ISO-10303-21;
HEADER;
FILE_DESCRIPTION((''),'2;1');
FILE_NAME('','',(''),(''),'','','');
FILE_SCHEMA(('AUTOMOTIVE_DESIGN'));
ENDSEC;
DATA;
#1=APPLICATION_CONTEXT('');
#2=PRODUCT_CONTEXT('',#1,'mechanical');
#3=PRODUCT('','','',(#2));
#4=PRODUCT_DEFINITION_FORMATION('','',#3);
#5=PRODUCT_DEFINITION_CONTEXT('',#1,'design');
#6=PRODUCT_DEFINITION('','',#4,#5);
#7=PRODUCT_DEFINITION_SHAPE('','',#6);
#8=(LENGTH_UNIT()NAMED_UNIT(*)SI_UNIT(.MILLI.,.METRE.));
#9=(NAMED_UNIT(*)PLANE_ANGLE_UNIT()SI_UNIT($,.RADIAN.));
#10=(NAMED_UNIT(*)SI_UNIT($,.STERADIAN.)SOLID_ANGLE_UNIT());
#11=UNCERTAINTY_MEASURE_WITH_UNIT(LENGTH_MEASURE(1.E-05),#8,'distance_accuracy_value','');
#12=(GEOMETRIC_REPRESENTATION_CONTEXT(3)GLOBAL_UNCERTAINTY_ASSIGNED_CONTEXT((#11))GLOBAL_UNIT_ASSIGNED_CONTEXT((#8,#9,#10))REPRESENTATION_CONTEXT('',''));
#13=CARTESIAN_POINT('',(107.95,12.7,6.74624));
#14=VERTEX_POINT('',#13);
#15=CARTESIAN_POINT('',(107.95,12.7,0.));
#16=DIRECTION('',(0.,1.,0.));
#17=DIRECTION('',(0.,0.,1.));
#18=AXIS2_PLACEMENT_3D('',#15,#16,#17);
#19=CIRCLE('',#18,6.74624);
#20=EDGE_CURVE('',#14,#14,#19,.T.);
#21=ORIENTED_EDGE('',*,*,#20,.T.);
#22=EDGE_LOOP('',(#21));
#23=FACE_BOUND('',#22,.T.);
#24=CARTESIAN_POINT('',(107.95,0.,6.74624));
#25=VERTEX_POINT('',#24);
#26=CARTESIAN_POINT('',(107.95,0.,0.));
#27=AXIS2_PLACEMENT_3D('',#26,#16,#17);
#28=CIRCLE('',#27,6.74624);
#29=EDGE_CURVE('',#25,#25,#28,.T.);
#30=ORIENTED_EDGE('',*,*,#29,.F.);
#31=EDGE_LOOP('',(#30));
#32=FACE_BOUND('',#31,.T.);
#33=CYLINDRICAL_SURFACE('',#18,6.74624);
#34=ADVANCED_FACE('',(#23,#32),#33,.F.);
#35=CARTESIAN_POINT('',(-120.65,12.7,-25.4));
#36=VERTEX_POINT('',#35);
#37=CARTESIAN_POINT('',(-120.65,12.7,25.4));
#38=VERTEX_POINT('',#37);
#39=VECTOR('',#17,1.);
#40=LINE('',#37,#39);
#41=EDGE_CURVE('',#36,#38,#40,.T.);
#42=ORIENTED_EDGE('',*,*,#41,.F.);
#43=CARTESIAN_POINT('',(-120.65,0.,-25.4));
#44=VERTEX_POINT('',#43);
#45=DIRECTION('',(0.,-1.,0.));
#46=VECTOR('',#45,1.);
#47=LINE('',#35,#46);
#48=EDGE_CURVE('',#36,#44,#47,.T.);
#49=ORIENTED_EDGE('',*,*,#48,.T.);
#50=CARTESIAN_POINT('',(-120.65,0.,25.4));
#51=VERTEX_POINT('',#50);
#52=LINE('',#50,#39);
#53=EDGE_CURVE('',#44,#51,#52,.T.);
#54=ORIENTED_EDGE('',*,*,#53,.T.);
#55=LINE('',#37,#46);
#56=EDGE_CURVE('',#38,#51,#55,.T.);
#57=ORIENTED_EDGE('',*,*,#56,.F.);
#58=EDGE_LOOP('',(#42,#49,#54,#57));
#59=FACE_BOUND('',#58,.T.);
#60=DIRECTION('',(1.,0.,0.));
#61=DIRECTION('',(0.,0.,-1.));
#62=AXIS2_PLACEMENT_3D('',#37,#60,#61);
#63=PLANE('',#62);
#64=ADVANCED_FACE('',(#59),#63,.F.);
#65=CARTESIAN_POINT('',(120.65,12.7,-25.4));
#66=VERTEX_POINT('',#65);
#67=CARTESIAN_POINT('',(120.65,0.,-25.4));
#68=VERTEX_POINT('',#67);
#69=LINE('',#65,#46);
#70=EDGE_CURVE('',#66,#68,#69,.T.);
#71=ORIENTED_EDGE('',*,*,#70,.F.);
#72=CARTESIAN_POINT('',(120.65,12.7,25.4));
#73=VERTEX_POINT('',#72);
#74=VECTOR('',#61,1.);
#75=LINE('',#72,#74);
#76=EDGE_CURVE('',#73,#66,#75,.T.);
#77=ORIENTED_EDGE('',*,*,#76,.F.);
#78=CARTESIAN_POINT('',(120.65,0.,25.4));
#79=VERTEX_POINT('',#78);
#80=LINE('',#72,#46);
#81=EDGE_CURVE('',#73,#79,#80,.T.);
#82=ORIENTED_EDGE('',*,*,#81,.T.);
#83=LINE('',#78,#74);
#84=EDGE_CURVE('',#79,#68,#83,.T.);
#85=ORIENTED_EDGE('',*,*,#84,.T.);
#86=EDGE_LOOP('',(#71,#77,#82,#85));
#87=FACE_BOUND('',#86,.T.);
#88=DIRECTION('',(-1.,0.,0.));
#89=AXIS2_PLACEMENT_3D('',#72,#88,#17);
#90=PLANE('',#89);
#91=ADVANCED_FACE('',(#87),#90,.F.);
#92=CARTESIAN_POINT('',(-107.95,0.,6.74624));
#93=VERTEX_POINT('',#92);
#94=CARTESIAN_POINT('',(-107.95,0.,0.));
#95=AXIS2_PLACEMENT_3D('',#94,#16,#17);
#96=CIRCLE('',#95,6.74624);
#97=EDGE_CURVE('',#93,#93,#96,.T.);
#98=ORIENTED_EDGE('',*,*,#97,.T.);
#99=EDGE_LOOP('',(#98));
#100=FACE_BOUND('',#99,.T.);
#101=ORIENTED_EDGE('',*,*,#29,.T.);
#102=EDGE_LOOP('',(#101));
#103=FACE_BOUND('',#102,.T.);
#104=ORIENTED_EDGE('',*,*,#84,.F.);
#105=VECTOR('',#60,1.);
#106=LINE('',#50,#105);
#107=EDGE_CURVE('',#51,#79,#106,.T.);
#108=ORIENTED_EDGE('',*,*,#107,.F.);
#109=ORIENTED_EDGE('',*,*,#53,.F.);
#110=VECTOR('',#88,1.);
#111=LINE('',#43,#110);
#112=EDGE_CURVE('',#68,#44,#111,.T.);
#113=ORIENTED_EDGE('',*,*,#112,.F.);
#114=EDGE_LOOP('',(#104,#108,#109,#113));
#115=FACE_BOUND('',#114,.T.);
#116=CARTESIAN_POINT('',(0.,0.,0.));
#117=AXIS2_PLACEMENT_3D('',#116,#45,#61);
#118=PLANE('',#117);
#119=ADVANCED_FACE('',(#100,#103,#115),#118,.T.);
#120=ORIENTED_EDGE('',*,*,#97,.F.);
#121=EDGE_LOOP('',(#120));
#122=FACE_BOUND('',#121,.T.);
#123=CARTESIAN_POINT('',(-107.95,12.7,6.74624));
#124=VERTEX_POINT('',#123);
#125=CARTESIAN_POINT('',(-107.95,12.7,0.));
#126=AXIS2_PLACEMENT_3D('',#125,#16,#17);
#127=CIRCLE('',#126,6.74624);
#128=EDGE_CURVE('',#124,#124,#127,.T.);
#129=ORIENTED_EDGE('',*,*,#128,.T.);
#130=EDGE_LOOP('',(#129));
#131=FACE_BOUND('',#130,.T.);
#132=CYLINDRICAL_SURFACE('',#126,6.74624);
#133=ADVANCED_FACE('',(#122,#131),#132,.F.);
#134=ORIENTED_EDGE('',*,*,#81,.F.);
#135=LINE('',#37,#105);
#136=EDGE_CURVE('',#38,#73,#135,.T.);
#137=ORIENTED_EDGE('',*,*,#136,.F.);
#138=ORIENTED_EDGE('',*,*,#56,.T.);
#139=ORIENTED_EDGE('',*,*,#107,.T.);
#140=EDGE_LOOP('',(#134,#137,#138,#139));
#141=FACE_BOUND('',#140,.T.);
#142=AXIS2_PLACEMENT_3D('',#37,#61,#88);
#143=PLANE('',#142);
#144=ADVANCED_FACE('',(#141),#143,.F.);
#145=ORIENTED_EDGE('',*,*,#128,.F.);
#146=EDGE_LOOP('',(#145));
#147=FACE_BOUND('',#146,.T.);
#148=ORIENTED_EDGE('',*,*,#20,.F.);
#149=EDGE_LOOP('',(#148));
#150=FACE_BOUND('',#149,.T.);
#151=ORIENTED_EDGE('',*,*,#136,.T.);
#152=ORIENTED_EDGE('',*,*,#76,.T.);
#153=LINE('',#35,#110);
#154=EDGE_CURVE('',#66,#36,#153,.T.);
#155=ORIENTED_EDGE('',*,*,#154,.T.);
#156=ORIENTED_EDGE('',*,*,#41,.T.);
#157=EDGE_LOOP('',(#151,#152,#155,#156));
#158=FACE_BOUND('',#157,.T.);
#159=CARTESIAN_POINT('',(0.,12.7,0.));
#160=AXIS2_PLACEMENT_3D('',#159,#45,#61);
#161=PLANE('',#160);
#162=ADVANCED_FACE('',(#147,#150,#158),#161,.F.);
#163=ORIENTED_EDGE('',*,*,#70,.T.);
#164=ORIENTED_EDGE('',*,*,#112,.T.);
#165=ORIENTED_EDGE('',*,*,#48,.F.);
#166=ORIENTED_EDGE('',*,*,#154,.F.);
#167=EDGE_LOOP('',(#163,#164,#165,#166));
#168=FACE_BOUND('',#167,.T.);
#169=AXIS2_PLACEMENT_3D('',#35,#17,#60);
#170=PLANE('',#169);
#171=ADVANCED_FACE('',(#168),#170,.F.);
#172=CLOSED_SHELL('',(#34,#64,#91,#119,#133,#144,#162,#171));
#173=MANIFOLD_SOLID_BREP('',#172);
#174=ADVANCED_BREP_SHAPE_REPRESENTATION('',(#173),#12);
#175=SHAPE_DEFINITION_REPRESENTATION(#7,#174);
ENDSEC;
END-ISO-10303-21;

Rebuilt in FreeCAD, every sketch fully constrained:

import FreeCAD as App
import Part
import Sketcher

V = App.Vector
Q = App.Units.Quantity

doc = App.newDocument("Part")
body = doc.addObject("PartDesign::Body", "Body")

# Sketch on XZ plane
sketch1 = body.newObject("Sketcher::SketchObject", "Sketch")
sketch1.AttachmentSupport = (doc.getObject("XZ_Plane"), [""])
sketch1.MapMode = "FlatFace"
sketch1.addGeometry(Part.LineSegment(V(-121, -25, 0), V(-121, 25, 0)), False)
sketch1.addGeometry(Part.LineSegment(V(-121, 25, 0), V(121, 25, 0)), False)
sketch1.addGeometry(Part.LineSegment(V(121, 25, 0), V(121, -25, 0)), False)
sketch1.addGeometry(Part.LineSegment(V(121, -25, 0), V(-121, -25, 0)), False)
sketch1.addConstraint(Sketcher.Constraint("Coincident", 0, 2, 1, 1))
sketch1.addConstraint(Sketcher.Constraint("Coincident", 1, 2, 2, 1))
sketch1.addConstraint(Sketcher.Constraint("Coincident", 2, 2, 3, 1))
sketch1.addConstraint(Sketcher.Constraint("Coincident", 3, 2, 0, 1))
sketch1.addConstraint(Sketcher.Constraint("Vertical", 0))
sketch1.addConstraint(Sketcher.Constraint("Horizontal", 1))
sketch1.addConstraint(Sketcher.Constraint("Vertical", 2))
sketch1.addConstraint(Sketcher.Constraint("Horizontal", 3))
sketch1.addConstraint(Sketcher.Constraint("Symmetric", 0, 2, 2, 2, -1, 1))
sketch1.addConstraint(Sketcher.Constraint("DistanceY", 0, 1, 0, 2, Q("2 in")))
sketch1.addConstraint(Sketcher.Constraint("DistanceX", 1, 1, 1, 2, Q("9.5 in")))
pad1 = body.newObject("PartDesign::Pad", "Pad")
pad1.Profile = sketch1
pad1.Length = Q("0.5 in")
pad1.Reversed = True

# Sketch on XZ plane
sketch2 = body.newObject("Sketcher::SketchObject", "Sketch001")
sketch2.AttachmentSupport = (doc.getObject("XZ_Plane"), [""])
sketch2.MapMode = "FlatFace"
sketch2.AttachmentOffset = App.Placement(V(0, 0, -0.5 * 25.4), App.Rotation())
sketch2.addGeometry(Part.Circle(V(-108, 0, 0), V(0, 0, 1), 7), False)
sketch2.addGeometry(Part.Circle(V(108, 0, 0), V(0, 0, 1), 7), False)
sketch2.addConstraint(Sketcher.Constraint("Equal", 0, 1))
sketch2.addConstraint(Sketcher.Constraint("Symmetric", 0, 3, 1, 3, -1, 1))
sketch2.addConstraint(Sketcher.Constraint("PointOnObject", 0, 3, -1))
sketch2.addConstraint(Sketcher.Constraint("Diameter", 0, Q("0.5312 in")))
sketch2.addConstraint(Sketcher.Constraint("DistanceX", 0, 3, 1, 3, Q("8.5 in")))
doc.recompute()
hole = body.newObject("PartDesign::Hole", "Hole")
hole.Profile = sketch2
hole.ThreadType = "None"
hole.Diameter = Q("0.5312 in")
hole.DepthType = "ThroughAll"
hole.Reversed = True

doc.recompute()
